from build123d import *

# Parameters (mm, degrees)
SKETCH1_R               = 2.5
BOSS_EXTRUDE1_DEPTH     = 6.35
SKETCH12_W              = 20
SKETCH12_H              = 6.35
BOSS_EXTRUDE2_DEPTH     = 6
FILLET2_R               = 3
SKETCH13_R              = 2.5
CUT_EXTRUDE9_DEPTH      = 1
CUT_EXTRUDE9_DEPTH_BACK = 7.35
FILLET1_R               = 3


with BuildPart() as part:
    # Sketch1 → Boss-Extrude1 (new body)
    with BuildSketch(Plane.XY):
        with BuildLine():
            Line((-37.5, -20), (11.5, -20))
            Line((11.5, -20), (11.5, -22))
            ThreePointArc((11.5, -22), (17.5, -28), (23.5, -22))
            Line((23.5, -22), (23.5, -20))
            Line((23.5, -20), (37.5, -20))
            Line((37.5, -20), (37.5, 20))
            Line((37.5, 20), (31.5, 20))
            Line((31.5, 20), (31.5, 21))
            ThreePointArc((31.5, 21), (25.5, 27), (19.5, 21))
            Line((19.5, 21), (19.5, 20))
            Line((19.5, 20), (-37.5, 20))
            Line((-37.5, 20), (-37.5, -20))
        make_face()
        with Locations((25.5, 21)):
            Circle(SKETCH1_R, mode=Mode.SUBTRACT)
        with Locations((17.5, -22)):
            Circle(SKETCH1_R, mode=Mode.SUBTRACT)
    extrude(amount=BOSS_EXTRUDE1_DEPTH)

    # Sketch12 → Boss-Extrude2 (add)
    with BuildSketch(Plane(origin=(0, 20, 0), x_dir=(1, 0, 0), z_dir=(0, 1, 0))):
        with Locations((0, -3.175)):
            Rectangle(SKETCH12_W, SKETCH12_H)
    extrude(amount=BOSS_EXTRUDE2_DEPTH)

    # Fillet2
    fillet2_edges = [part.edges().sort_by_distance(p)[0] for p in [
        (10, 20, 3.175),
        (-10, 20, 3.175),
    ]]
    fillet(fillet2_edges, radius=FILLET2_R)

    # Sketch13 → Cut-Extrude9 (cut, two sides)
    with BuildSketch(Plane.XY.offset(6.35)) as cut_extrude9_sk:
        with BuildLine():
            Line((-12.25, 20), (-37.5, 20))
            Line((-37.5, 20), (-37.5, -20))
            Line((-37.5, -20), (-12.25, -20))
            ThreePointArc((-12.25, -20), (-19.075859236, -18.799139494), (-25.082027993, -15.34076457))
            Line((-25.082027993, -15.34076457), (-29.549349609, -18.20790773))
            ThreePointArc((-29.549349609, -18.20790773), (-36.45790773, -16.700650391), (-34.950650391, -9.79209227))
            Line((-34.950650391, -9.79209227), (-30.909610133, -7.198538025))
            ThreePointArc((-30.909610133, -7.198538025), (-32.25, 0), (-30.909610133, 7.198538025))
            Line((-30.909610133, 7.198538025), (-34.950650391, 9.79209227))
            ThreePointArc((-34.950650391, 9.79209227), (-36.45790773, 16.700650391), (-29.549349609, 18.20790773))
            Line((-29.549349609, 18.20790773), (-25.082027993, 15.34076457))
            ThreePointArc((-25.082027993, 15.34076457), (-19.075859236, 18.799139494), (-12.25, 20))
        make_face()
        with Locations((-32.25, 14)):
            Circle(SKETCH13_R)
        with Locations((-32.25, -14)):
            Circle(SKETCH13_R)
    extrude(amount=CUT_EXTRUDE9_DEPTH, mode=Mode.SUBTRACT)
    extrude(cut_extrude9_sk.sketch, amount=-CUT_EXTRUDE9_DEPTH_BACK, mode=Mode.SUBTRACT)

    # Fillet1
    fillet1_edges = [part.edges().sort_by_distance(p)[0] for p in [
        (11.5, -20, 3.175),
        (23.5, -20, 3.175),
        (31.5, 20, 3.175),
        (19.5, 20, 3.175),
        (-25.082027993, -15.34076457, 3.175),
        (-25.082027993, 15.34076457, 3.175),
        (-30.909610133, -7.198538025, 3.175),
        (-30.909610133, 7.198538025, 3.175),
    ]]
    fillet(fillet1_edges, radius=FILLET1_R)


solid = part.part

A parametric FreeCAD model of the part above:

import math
import FreeCAD as App
import Part
import Sketcher
Q = App.Units.Quantity


def edges_at(feature, points):
    """Names of the edges that pass closest to the given points."""
    edges = feature.Shape.Edges
    near = lambda p: min(range(len(edges)), key=lambda i: edges[i].distToShape(Part.Vertex(*p))[0])
    return sorted({f"Edge{near(p) + 1}" for p in points})

doc = App.newDocument("Part")
body = doc.addObject("PartDesign::Body", "Body")

# Sketch on XY plane
sketch1 = body.newObject("Sketcher::SketchObject", "Sketch")
sketch1.AttachmentSupport = (doc.getObject("XY_Plane"), [""])
sketch1.MapMode = "FlatFace"
sketch1.addGeometry([
    Part.LineSegment(App.Vector(-37.5, -20, 0), App.Vector(11.5, -20, 0)),  # 0
    Part.LineSegment(App.Vector(11.5, -20, 0), App.Vector(11.5, -22, 0)),  # 1
    Part.ArcOfCircle(Part.Circle(App.Vector(17.5, -22, 0), App.Vector(0, 0, 1), 6), math.radians(180), math.radians(360)),  # 2
    Part.LineSegment(App.Vector(23.5, -22, 0), App.Vector(23.5, -20, 0)),  # 3
    Part.LineSegment(App.Vector(23.5, -20, 0), App.Vector(37.5, -20, 0)),  # 4
    Part.LineSegment(App.Vector(37.5, -20, 0), App.Vector(37.5, 20, 0)),  # 5
    Part.LineSegment(App.Vector(37.5, 20, 0), App.Vector(31.5, 20, 0)),  # 6
    Part.LineSegment(App.Vector(31.5, 20, 0), App.Vector(31.5, 21, 0)),  # 7
    Part.ArcOfCircle(Part.Circle(App.Vector(25.5, 21, 0), App.Vector(0, 0, 1), 6), math.radians(0), math.radians(180)),  # 8
    Part.LineSegment(App.Vector(19.5, 21, 0), App.Vector(19.5, 20, 0)),  # 9
    Part.LineSegment(App.Vector(19.5, 20, 0), App.Vector(-37.5, 20, 0)),  # 10
    Part.LineSegment(App.Vector(-37.5, 20, 0), App.Vector(-37.5, -20, 0)),  # 11
    Part.Circle(App.Vector(17.5, -22, 0), App.Vector(0, 0, 1), 2.5),  # 12
    Part.Circle(App.Vector(25.5, 21, 0), App.Vector(0, 0, 1), 2.5),  # 13
], False)
sketch1.addConstraint([
    Sketcher.Constraint("Coincident", 0, 2, 1, 1),
    Sketcher.Constraint("Tangent", 1, 2, 2, 1),
    Sketcher.Constraint("Tangent", 2, 2, 3, 1),
    Sketcher.Constraint("Coincident", 3, 2, 4, 1),
    Sketcher.Constraint("Coincident", 4, 2, 5, 1),
    Sketcher.Constraint("Coincident", 5, 2, 6, 1),
    Sketcher.Constraint("Coincident", 6, 2, 7, 1),
    Sketcher.Constraint("Tangent", 7, 2, 8, 1),
    Sketcher.Constraint("Tangent", 8, 2, 9, 1),
    Sketcher.Constraint("Coincident", 9, 2, 10, 1),
    Sketcher.Constraint("Coincident", 10, 2, 11, 1),
    Sketcher.Constraint("Coincident", 11, 2, 0, 1),
    Sketcher.Constraint("Horizontal", 0),
    Sketcher.Constraint("Vertical", 1),
    Sketcher.Constraint("Vertical", 3),
    Sketcher.Constraint("Horizontal", 4),
    Sketcher.Constraint("Vertical", 5),
    Sketcher.Constraint("Horizontal", 6),
    Sketcher.Constraint("Vertical", 7),
    Sketcher.Constraint("Vertical", 9),
    Sketcher.Constraint("Horizontal", 10),
    Sketcher.Constraint("Vertical", 11),
    Sketcher.Constraint("Coincident", 12, 3, 2, 3),
    Sketcher.Constraint("Coincident", 13, 3, 8, 3),
    Sketcher.Constraint("Equal", 2, 8),
    Sketcher.Constraint("Equal", 12, 13),
    Sketcher.Constraint("Symmetric", 4, 2, 10, 2, -1, 1),
    Sketcher.Constraint("Horizontal", 0, 2, 3, 2),
    Sketcher.Constraint("Horizontal", 6, 2, 9, 2),
    Sketcher.Constraint("Diameter", 12, Q("5 mm")),
    Sketcher.Constraint("Radius", 2, Q("6 mm")),
    Sketcher.Constraint("DistanceX", 0, 1, 0, 2, Q("49 mm")),
    Sketcher.Constraint("DistanceX", 4, 1, 4, 2, Q("14 mm")),
    Sketcher.Constraint("DistanceX", 6, 2, 6, 1, Q("6 mm")),
    Sketcher.Constraint("DistanceY", 1, 2, 1, 1, Q("2 mm")),
    Sketcher.Constraint("DistanceY", 5, 1, 5, 2, Q("40 mm")),
    Sketcher.Constraint("DistanceY", 7, 1, 7, 2, Q("1 mm")),
])
pad1 = body.newObject("PartDesign::Pad", "Pad")
pad1.Profile = sketch1
pad1.Length = 6.35

# Sketch on XZ plane
sketch2 = body.newObject("Sketcher::SketchObject", "Sketch001")
sketch2.AttachmentSupport = (doc.getObject("XZ_Plane"), [""])
sketch2.MapMode = "FlatFace"
sketch2.AttachmentOffset = App.Placement(App.Vector(0, 0, -20), App.Rotation())
sketch2.addGeometry([
    Part.LineSegment(App.Vector(-10, 0, 0), App.Vector(-10, 6.35, 0)),
    Part.LineSegment(App.Vector(-10, 6.35, 0), App.Vector(10, 6.35, 0)),
    Part.LineSegment(App.Vector(10, 6.35, 0), App.Vector(10, 0, 0)),
    Part.LineSegment(App.Vector(10, 0, 0), App.Vector(-10, 0, 0)),
], False)
sketch2.addConstraint([
    Sketcher.Constraint("Coincident", 0, 2, 1, 1),
    Sketcher.Constraint("Coincident", 1, 2, 2, 1),
    Sketcher.Constraint("Coincident", 2, 2, 3, 1),
    Sketcher.Constraint("Coincident", 3, 2, 0, 1),
    Sketcher.Constraint("Vertical", 0),
    Sketcher.Constraint("Horizontal", 1),
    Sketcher.Constraint("Vertical", 2),
    Sketcher.Constraint("Horizontal", 3),
    Sketcher.Constraint("Symmetric", 2, 2, 3, 2, -1, 1),
    Sketcher.Constraint("DistanceX", 1, 1, 1, 2, Q("20 mm")),
    Sketcher.Constraint("DistanceY", 0, 1, 0, 2, Q("6.35 mm")),
])
pad2 = body.newObject("PartDesign::Pad", "Pad001")
pad2.Profile = sketch2
pad2.Length = 6
pad2.Reversed = True
doc.recompute()

fillet = body.newObject("PartDesign::Fillet", "Fillet")
fillet.Base = (pad2, edges_at(pad2, [(10, 20, 3.175), (-10, 20, 3.175)]))
fillet.Radius = 3

# Sketch on XY plane
sketch3 = body.newObject("Sketcher::SketchObject", "Sketch002")
sketch3.AttachmentSupport = (doc.getObject("XY_Plane"), [""])
sketch3.MapMode = "FlatFace"
sketch3.AttachmentOffset = App.Placement(App.Vector(0, 0, 6.35), App.Rotation())
sketch3.addGeometry([
    Part.LineSegment(App.Vector(-12.25, 20, 0), App.Vector(-37.5, 20, 0)),  # 0
    Part.LineSegment(App.Vector(-37.5, 20, 0), App.Vector(-37.5, -20, 0)),  # 1
    Part.LineSegment(App.Vector(-37.5, -20, 0), App.Vector(-12.25, -20, 0)),  # 2
    Part.ArcOfCircle(Part.Circle(App.Vector(-12.25, 0, 0), App.Vector(0, 0, 1), 20), math.radians(-129.911336), math.radians(-90)),  # 3
    Part.LineSegment(App.Vector(-25.082028, -15.340765, 0), App.Vector(-29.54935, -18.207908, 0)),  # 4
    Part.ArcOfCircle(Part.Circle(App.Vector(-32.25, -14, 0), App.Vector(0, 0, 1), 5), math.radians(122.692494), math.radians(302.692494)),  # 5
    Part.LineSegment(App.Vector(-34.95065, -9.792092, 0), App.Vector(-30.90961, -7.198538, 0)),  # 6
    Part.ArcOfCircle(Part.Circle(App.Vector(-12.25, 0, 0), App.Vector(0, 0, 1), 20), math.radians(158.904293), math.radians(201.095707)),  # 7
    Part.LineSegment(App.Vector(-30.90961, 7.198538, 0), App.Vector(-34.95065, 9.792092, 0)),  # 8
    Part.ArcOfCircle(Part.Circle(App.Vector(-32.25, 14, 0), App.Vector(0, 0, 1), 5), math.radians(57.307506), math.radians(237.307506)),  # 9
    Part.LineSegment(App.Vector(-29.54935, 18.207908, 0), App.Vector(-25.082028, 15.340765, 0)),  # 10
    Part.ArcOfCircle(Part.Circle(App.Vector(-12.25, 0, 0), App.Vector(0, 0, 1), 20), math.radians(90), math.radians(129.911336)),  # 11
    Part.Circle(App.Vector(-32.25, 14, 0), App.Vector(0, 0, 1), 2.5),  # 12
    Part.Circle(App.Vector(-32.25, -14, 0), App.Vector(0, 0, 1), 2.5),  # 13
], False)
sketch3.addConstraint([
    Sketcher.Constraint("Coincident", 0, 2, 1, 1),
    Sketcher.Constraint("Coincident", 1, 2, 2, 1),
    Sketcher.Constraint("Tangent", 2, 2, 3, 2),
    Sketcher.Constraint("Coincident", 3, 1, 4, 1),
    Sketcher.Constraint("Tangent", 4, 2, 5, 2),
    Sketcher.Constraint("Tangent", 5, 1, 6, 1),
    Sketcher.Constraint("Coincident", 6, 2, 7, 2),
    Sketcher.Constraint("Coincident", 7, 1, 8, 1),
    Sketcher.Constraint("Tangent", 8, 2, 9, 2),
    Sketcher.Constraint("Tangent", 9, 1, 10, 1),
    Sketcher.Constraint("Coincident", 10, 2, 11, 2),
    Sketcher.Constraint("Tangent", 11, 1, 0, 1),
    Sketcher.Constraint("Horizontal", 0),
    Sketcher.Constraint("Vertical", 1),
    Sketcher.Constraint("Horizontal", 2),
    Sketcher.Constraint("Coincident", 7, 3, 3, 3),
    Sketcher.Constraint("Coincident", 11, 3, 3, 3),
    Sketcher.Constraint("Coincident", 12, 3, 9, 3),
    Sketcher.Constraint("Coincident", 13, 3, 5, 3),
    Sketcher.Constraint("Equal", 3, 7),
    Sketcher.Constraint("Equal", 5, 9),
    Sketcher.Constraint("Equal", 7, 11),
    Sketcher.Constraint("Equal", 12, 13),
    Sketcher.Constraint("Symmetric", 5, 3, 9, 3, -1),
    Sketcher.Constraint("Symmetric", 6, 2, 7, 1, -1),
    Sketcher.Constraint("Parallel", 4, 6),
    Sketcher.Constraint("Parallel", 8, 10),
    Sketcher.Constraint("Diameter", 12, Q("5 mm")),
    Sketcher.Constraint("Radius", 3, Q("20 mm")),
    Sketcher.Constraint("Radius", 5, Q("5 mm")),
    Sketcher.Constraint("DistanceY", 5, 3, -1, 1, Q("14 mm")),
    Sketcher.Constraint("DistanceX", 5, 3, 3, 3, Q("20 mm")),
    Sketcher.Constraint("DistanceX", 0, 2, 0, 1, Q("25.25 mm")),
    Sketcher.Constraint("DistanceX", 0, 2, -1, 1, Q("37.5 mm")),
    Sketcher.Constraint("DistanceX", 5, 1, 4, 2, Q("5.401301 mm")),
])
pocket1 = body.newObject("PartDesign::Pocket", "Pocket")
pocket1.Profile = sketch3
pocket1.Type = "ThroughAll"
pocket1.Midplane = True
doc.recompute()

fillet2 = body.newObject("PartDesign::Fillet", "Fillet001")
fillet2.Base = (pocket1, edges_at(pocket1, [
    (11.5, -20, 3.175),
    (23.5, -20, 3.175),
    (31.5, 20, 3.175),
    (19.5, 20, 3.175),
    (-25.082, -15.341, 3.175),
    (-25.082, 15.341, 3.175),
    (-30.91, -7.199, 3.175),
    (-30.91, 7.199, 3.175),
]))
fillet2.Radius = 3

doc.recompute()
